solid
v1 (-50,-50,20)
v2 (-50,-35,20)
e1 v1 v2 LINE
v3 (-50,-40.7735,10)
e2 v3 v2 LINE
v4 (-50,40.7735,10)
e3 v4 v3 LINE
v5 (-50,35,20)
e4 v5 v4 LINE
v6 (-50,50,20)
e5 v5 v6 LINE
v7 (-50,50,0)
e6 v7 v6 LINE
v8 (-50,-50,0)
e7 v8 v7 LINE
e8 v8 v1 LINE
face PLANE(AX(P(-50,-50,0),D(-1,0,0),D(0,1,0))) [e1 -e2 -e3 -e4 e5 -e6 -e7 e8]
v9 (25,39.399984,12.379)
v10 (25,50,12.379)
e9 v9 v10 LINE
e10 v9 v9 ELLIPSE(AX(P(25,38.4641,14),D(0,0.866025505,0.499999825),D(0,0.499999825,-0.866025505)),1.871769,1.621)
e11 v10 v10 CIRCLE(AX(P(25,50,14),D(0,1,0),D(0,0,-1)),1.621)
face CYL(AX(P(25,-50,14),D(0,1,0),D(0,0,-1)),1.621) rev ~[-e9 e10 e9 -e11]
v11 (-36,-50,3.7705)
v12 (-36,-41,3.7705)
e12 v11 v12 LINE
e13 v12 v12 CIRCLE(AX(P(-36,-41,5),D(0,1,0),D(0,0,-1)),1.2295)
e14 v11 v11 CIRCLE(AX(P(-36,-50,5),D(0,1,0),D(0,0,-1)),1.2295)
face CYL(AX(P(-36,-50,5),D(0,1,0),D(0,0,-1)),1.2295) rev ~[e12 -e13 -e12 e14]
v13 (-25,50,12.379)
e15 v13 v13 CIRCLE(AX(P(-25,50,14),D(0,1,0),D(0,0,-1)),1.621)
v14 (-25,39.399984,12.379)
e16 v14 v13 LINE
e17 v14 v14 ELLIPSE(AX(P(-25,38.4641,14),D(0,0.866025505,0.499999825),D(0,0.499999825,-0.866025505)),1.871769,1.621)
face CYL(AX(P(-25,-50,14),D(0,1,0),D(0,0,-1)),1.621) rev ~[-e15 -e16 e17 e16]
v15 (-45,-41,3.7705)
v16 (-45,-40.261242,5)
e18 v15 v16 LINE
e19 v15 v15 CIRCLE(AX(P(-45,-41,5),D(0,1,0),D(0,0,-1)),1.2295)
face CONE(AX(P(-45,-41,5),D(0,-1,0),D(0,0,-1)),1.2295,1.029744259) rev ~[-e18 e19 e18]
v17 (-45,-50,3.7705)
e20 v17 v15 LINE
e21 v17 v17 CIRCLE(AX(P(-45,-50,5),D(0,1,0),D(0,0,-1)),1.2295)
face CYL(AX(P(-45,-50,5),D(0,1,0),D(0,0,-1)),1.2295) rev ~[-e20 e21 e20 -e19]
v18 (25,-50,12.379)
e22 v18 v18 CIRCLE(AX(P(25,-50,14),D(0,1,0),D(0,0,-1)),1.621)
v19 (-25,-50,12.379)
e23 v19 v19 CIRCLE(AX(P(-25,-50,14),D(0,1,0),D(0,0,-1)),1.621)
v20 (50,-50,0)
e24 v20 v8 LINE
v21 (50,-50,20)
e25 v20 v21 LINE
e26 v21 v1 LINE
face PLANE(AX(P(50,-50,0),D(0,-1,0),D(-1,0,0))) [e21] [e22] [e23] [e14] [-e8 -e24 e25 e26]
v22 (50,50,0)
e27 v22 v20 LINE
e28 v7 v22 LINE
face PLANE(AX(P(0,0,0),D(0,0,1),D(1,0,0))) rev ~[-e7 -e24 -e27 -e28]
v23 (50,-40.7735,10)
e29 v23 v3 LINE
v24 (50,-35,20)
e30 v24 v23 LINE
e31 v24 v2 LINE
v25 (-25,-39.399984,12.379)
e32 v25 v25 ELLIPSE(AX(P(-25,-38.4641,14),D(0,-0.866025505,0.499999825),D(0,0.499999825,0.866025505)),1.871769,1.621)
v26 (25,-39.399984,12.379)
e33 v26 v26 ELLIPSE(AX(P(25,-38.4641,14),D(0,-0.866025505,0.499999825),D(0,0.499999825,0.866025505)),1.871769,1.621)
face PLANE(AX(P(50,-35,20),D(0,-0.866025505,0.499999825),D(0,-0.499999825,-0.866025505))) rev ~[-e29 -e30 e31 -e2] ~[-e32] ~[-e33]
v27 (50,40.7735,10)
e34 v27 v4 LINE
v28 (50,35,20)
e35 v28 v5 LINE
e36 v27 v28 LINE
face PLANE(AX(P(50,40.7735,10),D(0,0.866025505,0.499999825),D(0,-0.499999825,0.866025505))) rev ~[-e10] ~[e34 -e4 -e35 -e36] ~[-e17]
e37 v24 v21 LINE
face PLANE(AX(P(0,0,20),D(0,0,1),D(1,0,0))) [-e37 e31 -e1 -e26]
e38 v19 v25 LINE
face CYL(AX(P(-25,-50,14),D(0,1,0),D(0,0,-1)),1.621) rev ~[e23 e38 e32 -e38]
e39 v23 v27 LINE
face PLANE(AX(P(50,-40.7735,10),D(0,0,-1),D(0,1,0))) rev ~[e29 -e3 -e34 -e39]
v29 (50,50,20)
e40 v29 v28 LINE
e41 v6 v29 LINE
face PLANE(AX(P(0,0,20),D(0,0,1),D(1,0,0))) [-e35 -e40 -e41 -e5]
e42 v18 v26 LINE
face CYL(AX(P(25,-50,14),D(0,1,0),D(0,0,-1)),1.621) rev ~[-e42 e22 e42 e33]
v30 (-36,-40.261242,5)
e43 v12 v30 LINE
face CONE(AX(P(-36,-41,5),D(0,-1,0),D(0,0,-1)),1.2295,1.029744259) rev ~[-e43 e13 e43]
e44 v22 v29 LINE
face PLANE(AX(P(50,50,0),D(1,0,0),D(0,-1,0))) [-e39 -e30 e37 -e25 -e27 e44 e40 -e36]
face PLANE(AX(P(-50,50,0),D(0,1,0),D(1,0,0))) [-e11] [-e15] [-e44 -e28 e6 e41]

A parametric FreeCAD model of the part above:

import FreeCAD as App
import Part
import Sketcher

V = App.Vector
Q = App.Units.Quantity

doc = App.newDocument("Part")
params = doc.addObject("Spreadsheet::Sheet", "Params")
for row, (alias, value) in enumerate([
    ("sketch1_width", "100 mm"),
    ("pad1_length", "20 mm"),
    ("sketch2_width", "70 mm"),
    ("pocket1_length", "118.25 mm"),
    ("hole_diameter", "3.242 mm"),
    ("hole2_diameter", "2.459 mm"),
    ("hole2_depth", "9 mm"),
], start=1):
    params.set(f"A{row}", alias)
    params.set(f"B{row}", "=" + value)
    params.setAlias(f"B{row}", alias)

body = doc.addObject("PartDesign::Body", "Body")

sketch1 = body.newObject("Sketcher::SketchObject", "Sketch")
sketch1.AttachmentSupport = (doc.getObject("XY_Plane"), [""])
sketch1.MapMode = "FlatFace"
sketch1.addGeometry([
    Part.LineSegment(V(50, 50, 0), V(-50, 50, 0)),
    Part.LineSegment(V(-50, 50, 0), V(-50, -50, 0)),
    Part.LineSegment(V(-50, -50, 0), V(50, -50, 0)),
    Part.LineSegment(V(50, -50, 0), V(50, 50, 0)),
], False)
sketch1.addConstraint([
    Sketcher.Constraint("Coincident", 0, 2, 1, 1),
    Sketcher.Constraint("Coincident", 1, 2, 2, 1),
    Sketcher.Constraint("Coincident", 2, 2, 3, 1),
    Sketcher.Constraint("Coincident", 3, 2, 0, 1),
    Sketcher.Constraint("Horizontal", 0),
    Sketcher.Constraint("Vertical", 1),
    Sketcher.Constraint("Horizontal", 2),
    Sketcher.Constraint("Vertical", 3),
    Sketcher.Constraint("Symmetric", 0, 2, 2, 2, -1, 1),
    Sketcher.Constraint("Equal", 2, 1),
    Sketcher.Constraint("DistanceX", 0, 2, 0, 1, Q("100 mm")),
])
sketch1.setExpression("Constraints[10]", "Params.sketch1_width")
pad1 = body.newObject("PartDesign::Pad", "Pad")
pad1.Profile = sketch1
pad1.setExpression("Length", "Params.pad1_length")

sketch2 = body.newObject("Sketcher::SketchObject", "Sketch001")
sketch2.AttachmentSupport = (doc.getObject("YZ_Plane"), [""])
sketch2.MapMode = "FlatFace"
sketch2.AttachmentOffset = App.Placement(V(0, 0, 50), App.Rotation())
sketch2.addGeometry([
    Part.LineSegment(V(41, 10, 0), V(35, 20, 0)),
    Part.LineSegment(V(35, 20, 0), V(-35, 20, 0)),
    Part.LineSegment(V(-35, 20, 0), V(-41, 10, 0)),
    Part.LineSegment(V(-41, 10, 0), V(41, 10, 0)),
], False)
sketch2.addConstraint([
    Sketcher.Constraint("Coincident", 0, 2, 1, 1),
    Sketcher.Constraint("Coincident", 1, 2, 2, 1),
    Sketcher.Constraint("Coincident", 2, 2, 3, 1),
    Sketcher.Constraint("Coincident", 3, 2, 0, 1),
    Sketcher.Constraint("Horizontal", 1),
    Sketcher.Constraint("Horizontal", 3),
    Sketcher.Constraint("Equal", 0, 2),
    Sketcher.Constraint("DistanceY", -1, 1, 2, 2, Q("10 mm")),
    Sketcher.Constraint("DistanceY", 2, 2, 1, 2, Q("10 mm")),
    Sketcher.Constraint("DistanceX", 1, 2, 1, 1, Q("70 mm")),
    Sketcher.Constraint("Angle", 0, Q("120 deg")),
    Sketcher.Constraint("DistanceX", -1, 1, 0, 2, Q("35 mm")),
])
sketch2.setExpression("Constraints[9]", "Params.sketch2_width")
pocket1 = body.newObject("PartDesign::Pocket", "Pocket")
pocket1.Profile = sketch2
pocket1.setExpression("Length", "Params.pocket1_length")

sketch3 = body.newObject("Sketcher::SketchObject", "Sketch002")
sketch3.AttachmentSupport = (doc.getObject("XZ_Plane"), [""])
sketch3.MapMode = "FlatFace"
sketch3.AttachmentOffset = App.Placement(V(0, 0, 50), App.Rotation())
sketch3.addGeometry([
    Part.Circle(V(-25, 14, 0), V(0, 0, 1), 1.6),
    Part.Circle(V(25, 14, 0), V(0, 0, 1), 1.6),
], False)
sketch3.addConstraint([
    Sketcher.Constraint("Equal", 0, 1),
    Sketcher.Constraint("Symmetric", 0, 3, 1, 3, -2),
    Sketcher.Constraint("Diameter", 0, Q("3.242 mm")),
    Sketcher.Constraint("DistanceX", 0, 3, -1, 1, Q("25 mm")),
    Sketcher.Constraint("DistanceY", -1, 1, 0, 3, Q("14 mm")),
])
doc.recompute()
hole = body.newObject("PartDesign::Hole", "Hole")
hole.Profile = sketch3
hole.ThreadType = "None"
hole.setExpression("Diameter", "Params.hole_diameter")
hole.DepthType = "ThroughAll"

sketch4 = body.newObject("Sketcher::SketchObject", "Sketch003")
sketch4.AttachmentSupport = (doc.getObject("XZ_Plane"), [""])
sketch4.MapMode = "FlatFace"
sketch4.AttachmentOffset = App.Placement(V(0, 0, 50), App.Rotation())
sketch4.addGeometry([
    Part.Circle(V(-45, 5, 0), V(0, 0, 1), 1.2),
    Part.Circle(V(-36, 5, 0), V(0, 0, 1), 1.2),
], False)
sketch4.addConstraint([
    Sketcher.Constraint("Equal", 0, 1),
    Sketcher.Constraint("Horizontal", 0, 3, 1, 3),
    Sketcher.Constraint("Diameter", 0, Q("2.459 mm")),
    Sketcher.Constraint("DistanceX", 0, 3, -1, 1, Q("45 mm")),
    Sketcher.Constraint("DistanceY", -1, 1, 0, 3, Q("5 mm")),
    Sketcher.Constraint("DistanceX", 1, 3, -1, 1, Q("36 mm")),
])
doc.recompute()
hole2 = body.newObject("PartDesign::Hole", "Hole001")
hole2.Profile = sketch4
hole2.ThreadType = "None"
hole2.setExpression("Diameter", "Params.hole2_diameter")
hole2.DepthType = "Dimension"
hole2.setExpression("Depth", "Params.hole2_depth")
hole2.DrillPoint = "Angled"
hole2.DrillPointAngle = 118

doc.recompute()
